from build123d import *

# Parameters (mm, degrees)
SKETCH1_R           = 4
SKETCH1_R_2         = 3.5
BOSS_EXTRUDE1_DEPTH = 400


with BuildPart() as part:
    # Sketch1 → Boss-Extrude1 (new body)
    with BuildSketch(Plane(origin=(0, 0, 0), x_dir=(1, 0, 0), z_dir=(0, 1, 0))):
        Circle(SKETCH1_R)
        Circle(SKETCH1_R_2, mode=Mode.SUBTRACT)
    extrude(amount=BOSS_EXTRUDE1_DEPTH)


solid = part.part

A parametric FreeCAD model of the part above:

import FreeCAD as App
import Part
import Sketcher

V = App.Vector
Q = App.Units.Quantity

doc = App.newDocument("Part")
body = doc.addObject("PartDesign::Body", "Body")

# Sketch on XZ plane
sketch1 = doc.addObject("Sketcher::SketchObject", "Sketch")
body.addObject(sketch1)
sketch1.AttachmentSupport = (doc.XZ_Plane, [""])
sketch1.MapMode = "FlatFace"
sketch1.addGeometry(Part.Circle(V(0, 0, 0), V(0, 0, 1), 4), False)
sketch1.addGeometry(Part.Circle(V(0, 0, 0), V(0, 0, 1), 3.5), False)
sketch1.addConstraint(Sketcher.Constraint("Coincident", 0, 3, -1, 1))
sketch1.addConstraint(Sketcher.Constraint("Coincident", 1, 3, -1, 1))
sketch1.addConstraint(Sketcher.Constraint("Diameter", 0, Q("8 mm")))
sketch1.addConstraint(Sketcher.Constraint("Diameter", 1, Q("7 mm")))
pad1 = doc.addObject("PartDesign::Pad", "Pad")
body.addObject(pad1)
pad1.Profile = sketch1
pad1.Length = 400
pad1.Reversed = True

doc.recompute()
